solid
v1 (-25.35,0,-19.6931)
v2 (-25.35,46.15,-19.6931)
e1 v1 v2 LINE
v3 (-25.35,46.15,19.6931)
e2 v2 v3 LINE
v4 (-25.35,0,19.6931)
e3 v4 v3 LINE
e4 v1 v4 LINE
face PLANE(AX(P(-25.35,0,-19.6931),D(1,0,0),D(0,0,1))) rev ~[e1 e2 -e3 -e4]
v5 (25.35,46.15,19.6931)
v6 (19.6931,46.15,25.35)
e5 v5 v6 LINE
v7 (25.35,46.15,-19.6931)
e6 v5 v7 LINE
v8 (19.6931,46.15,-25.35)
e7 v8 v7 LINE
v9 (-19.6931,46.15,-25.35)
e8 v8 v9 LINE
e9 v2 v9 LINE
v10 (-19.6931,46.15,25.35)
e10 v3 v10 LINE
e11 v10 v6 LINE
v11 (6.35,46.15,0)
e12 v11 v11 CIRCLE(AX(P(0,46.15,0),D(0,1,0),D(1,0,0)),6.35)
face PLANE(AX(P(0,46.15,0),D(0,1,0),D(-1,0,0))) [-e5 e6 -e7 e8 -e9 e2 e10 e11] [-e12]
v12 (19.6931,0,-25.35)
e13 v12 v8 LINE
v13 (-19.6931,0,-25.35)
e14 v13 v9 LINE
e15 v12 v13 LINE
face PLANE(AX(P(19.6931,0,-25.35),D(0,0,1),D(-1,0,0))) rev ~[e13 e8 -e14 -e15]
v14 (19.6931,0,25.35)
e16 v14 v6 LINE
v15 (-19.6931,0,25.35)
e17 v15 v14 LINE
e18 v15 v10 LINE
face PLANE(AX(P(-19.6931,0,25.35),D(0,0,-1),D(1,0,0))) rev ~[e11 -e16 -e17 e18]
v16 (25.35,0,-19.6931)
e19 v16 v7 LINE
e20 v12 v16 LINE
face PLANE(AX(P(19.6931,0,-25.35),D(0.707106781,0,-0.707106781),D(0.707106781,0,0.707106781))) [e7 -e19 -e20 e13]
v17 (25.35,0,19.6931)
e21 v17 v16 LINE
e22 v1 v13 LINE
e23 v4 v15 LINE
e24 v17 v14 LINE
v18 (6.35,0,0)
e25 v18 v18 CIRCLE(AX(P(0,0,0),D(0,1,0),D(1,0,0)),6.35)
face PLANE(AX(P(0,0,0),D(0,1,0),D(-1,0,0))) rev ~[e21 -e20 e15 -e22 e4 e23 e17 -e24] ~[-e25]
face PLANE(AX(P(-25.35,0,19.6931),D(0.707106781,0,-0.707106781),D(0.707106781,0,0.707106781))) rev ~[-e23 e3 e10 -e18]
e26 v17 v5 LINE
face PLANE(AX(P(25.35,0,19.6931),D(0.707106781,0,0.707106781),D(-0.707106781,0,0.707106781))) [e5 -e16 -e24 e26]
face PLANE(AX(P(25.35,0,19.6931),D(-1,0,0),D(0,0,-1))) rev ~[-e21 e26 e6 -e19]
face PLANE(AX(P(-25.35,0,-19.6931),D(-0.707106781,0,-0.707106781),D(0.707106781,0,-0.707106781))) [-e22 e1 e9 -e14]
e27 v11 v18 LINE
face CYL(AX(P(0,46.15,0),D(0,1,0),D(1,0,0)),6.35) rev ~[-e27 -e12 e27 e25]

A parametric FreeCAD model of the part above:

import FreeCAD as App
import Part
import Sketcher
Q = App.Units.Quantity

doc = App.newDocument("Part")
params = doc.addObject("Spreadsheet::Sheet", "Params")
for row, (alias, value) in enumerate([
    ("sketch1_length", "8 mm"),
    ("pad1_length", "46.15 mm"),
    ("sketch2_diameter", "12.7 mm"),
], start=1):
    params.set(f"A{row}", alias)
    params.set(f"B{row}", "=" + value)
    params.setAlias(f"B{row}", alias)

body = doc.addObject("PartDesign::Body", "Body")

sketch1 = body.newObject("Sketcher::SketchObject", "Sketch")
sketch1.AttachmentSupport = (doc.getObject("XZ_Plane"), [""])
sketch1.MapMode = "FlatFace"
sketch1.addGeometry([
    Part.LineSegment(App.Vector(-25, 20, 0), App.Vector(-20, 25, 0)),
    Part.LineSegment(App.Vector(-20, 25, 0), App.Vector(20, 25, 0)),
    Part.LineSegment(App.Vector(20, 25, 0), App.Vector(25, 20, 0)),
    Part.LineSegment(App.Vector(25, 20, 0), App.Vector(25, -20, 0)),
    Part.LineSegment(App.Vector(25, -20, 0), App.Vector(20, -25, 0)),
    Part.LineSegment(App.Vector(20, -25, 0), App.Vector(-20, -25, 0)),
    Part.LineSegment(App.Vector(-20, -25, 0), App.Vector(-25, -20, 0)),
    Part.LineSegment(App.Vector(-25, -20, 0), App.Vector(-25, 20, 0)),
], False)
sketch1.addConstraint([
    Sketcher.Constraint("Coincident", 0, 2, 1, 1),
    Sketcher.Constraint("Coincident", 1, 2, 2, 1),
    Sketcher.Constraint("Coincident", 2, 2, 3, 1),
    Sketcher.Constraint("Coincident", 3, 2, 4, 1),
    Sketcher.Constraint("Coincident", 4, 2, 5, 1),
    Sketcher.Constraint("Coincident", 5, 2, 6, 1),
    Sketcher.Constraint("Coincident", 6, 2, 7, 1),
    Sketcher.Constraint("Coincident", 7, 2, 0, 1),
    Sketcher.Constraint("Horizontal", 1),
    Sketcher.Constraint("Vertical", 3),
    Sketcher.Constraint("Horizontal", 5),
    Sketcher.Constraint("Vertical", 7),
    Sketcher.Constraint("Symmetric", 0, 2, 4, 2, -1, 1),
    Sketcher.Constraint("Symmetric", 2, 2, 6, 2, -1, 1),
    Sketcher.Constraint("Perpendicular", 0, 2),
    Sketcher.Constraint("Perpendicular", 2, 4),
    Sketcher.Constraint("Perpendicular", 4, 6),
    Sketcher.Constraint("Horizontal", 3, 2, 6, 2),
    Sketcher.Constraint("Vertical", 1, 2, 4, 2),
    Sketcher.Constraint("Equal", 5, 3),
    Sketcher.Constraint("Distance", 0, Q("8 mm")),
    Sketcher.Constraint("DistanceY", 4, 2, 1, 2, Q("50.7 mm")),
])
sketch1.setExpression("Constraints[20]", "Params.sketch1_length")
pad1 = body.newObject("PartDesign::Pad", "Pad")
pad1.Profile = sketch1
pad1.setExpression("Length", "Params.pad1_length")
pad1.Reversed = True

sketch2 = body.newObject("Sketcher::SketchObject", "Sketch001")
sketch2.AttachmentSupport = (doc.getObject("XZ_Plane"), [""])
sketch2.MapMode = "FlatFace"
sketch2.AttachmentOffset = App.Placement(App.Vector(0, 0, -46.15), App.Rotation())
sketch2.addGeometry(Part.Circle(App.Vector(0, 0, 0), App.Vector(0, 0, 1), 6), False)
sketch2.addConstraint([
    Sketcher.Constraint("Coincident", 0, 3, -1, 1),
    Sketcher.Constraint("Diameter", 0, Q("12.7 mm")),
])
sketch2.setExpression("Constraints[1]", "Params.sketch2_diameter")
pocket1 = body.newObject("PartDesign::Pocket", "Pocket")
pocket1.Profile = sketch2
pocket1.Type = "ThroughAll"
pocket1.Reversed = True

doc.recompute()
